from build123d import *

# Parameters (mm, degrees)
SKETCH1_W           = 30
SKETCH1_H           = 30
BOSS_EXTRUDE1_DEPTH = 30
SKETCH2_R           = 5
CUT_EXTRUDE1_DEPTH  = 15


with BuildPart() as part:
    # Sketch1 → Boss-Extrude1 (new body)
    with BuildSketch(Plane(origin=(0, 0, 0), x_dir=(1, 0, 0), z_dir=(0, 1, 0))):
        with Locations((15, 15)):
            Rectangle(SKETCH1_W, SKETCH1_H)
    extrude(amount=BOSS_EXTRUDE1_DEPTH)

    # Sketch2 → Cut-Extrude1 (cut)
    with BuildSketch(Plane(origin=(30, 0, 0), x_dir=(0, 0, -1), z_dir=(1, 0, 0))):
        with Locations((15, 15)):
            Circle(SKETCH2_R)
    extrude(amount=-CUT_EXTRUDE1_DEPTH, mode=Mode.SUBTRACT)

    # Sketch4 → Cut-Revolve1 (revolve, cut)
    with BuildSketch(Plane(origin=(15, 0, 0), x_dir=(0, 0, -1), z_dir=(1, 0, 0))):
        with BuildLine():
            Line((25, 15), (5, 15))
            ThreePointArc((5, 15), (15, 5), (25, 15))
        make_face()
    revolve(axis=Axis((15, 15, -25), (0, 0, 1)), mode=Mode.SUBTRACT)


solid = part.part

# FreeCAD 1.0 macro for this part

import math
import FreeCAD as App
import Part
import Sketcher

V = App.Vector
Q = App.Units.Quantity


def add_polygon(sketch, points):
    """Adds a closed chain of lines whose ends are joined by coincident constraints."""
    first, n = sketch.GeometryCount, len(points)
    for a, b in zip(points, points[1:] + points[:1]):
        sketch.addGeometry(Part.LineSegment(App.Vector(*a, 0), App.Vector(*b, 0)), False)
    for i in range(n):
        sketch.addConstraint(Sketcher.Constraint("Coincident", first + i, 2, first + (i + 1) % n, 1))

doc = App.newDocument("Part")
params = doc.addObject("Spreadsheet::Sheet", "Params")
for row, (alias, value) in enumerate([
    ("sketch1_width", "30 mm"),
    ("pad1_length", "30 mm"),
    ("sketch2_diameter", "10 mm"),
    ("pocket1_length", "15 mm"),
    ("sketch3_radius", "10 mm"),
    ("groove_angle", "360 deg"),
], start=1):
    params.set(f"A{row}", alias)
    params.set(f"B{row}", "=" + value)
    params.setAlias(f"B{row}", alias)

body = doc.addObject("PartDesign::Body", "Body")

sketch1 = body.newObject("Sketcher::SketchObject", "Sketch")
sketch1.AttachmentSupport = (doc.getObject("XZ_Plane"), [""])
sketch1.MapMode = "FlatFace"
add_polygon(sketch1, [(0, -30), (0, 0), (30, 0), (30, -30)])
sketch1.addConstraint([
    Sketcher.Constraint("Vertical", 0),
    Sketcher.Constraint("Horizontal", 1),
    Sketcher.Constraint("Vertical", 2),
    Sketcher.Constraint("Horizontal", 3),
    Sketcher.Constraint("Coincident", 0, 2, -1, 1),
    Sketcher.Constraint("Equal", 3, 0),
    Sketcher.Constraint("DistanceX", 1, 1, 1, 2, Q("30 mm")),
])
sketch1.setExpression("Constraints[10]", "Params.sketch1_width")
pad1 = body.newObject("PartDesign::Pad", "Pad")
pad1.Profile = sketch1
pad1.setExpression("Length", "Params.pad1_length")
pad1.Reversed = True

sketch2 = body.newObject("Sketcher::SketchObject", "Sketch001")
sketch2.AttachmentSupport = (doc.getObject("YZ_Plane"), [""])
sketch2.MapMode = "FlatFace"
sketch2.AttachmentOffset = App.Placement(V(0, 0, 30), App.Rotation())
sketch2.addGeometry(Part.Circle(V(15, -15, 0), V(0, 0, 1), 5), False)
sketch2.addConstraint([
    Sketcher.Constraint("Diameter", 0, Q("10 mm")),
    Sketcher.Constraint("DistanceX", -1, 1, 0, 3, Q("15 mm")),
    Sketcher.Constraint("DistanceY", 0, 3, -1, 1, Q("15 mm")),
])
sketch2.setExpression("Constraints[0]", "Params.sketch2_diameter")
pocket1 = body.newObject("PartDesign::Pocket", "Pocket")
pocket1.Profile = sketch2
pocket1.setExpression("Length", "Params.pocket1_length")

sketch3 = body.newObject("Sketcher::SketchObject", "Sketch002")
sketch3.AttachmentSupport = (doc.getObject("YZ_Plane"), [""])
sketch3.MapMode = "FlatFace"
sketch3.AttachmentOffset = App.Placement(V(0, 0, 15), App.Rotation())
sketch3.addGeometry([
    Part.LineSegment(V(15, -25, 0), V(15, -5, 0)),
    Part.ArcOfCircle(Part.Circle(V(15, -15, 0), V(0, 0, 1), 10), math.radians(90), math.radians(270)),
], False)
sketch3.addGeometry(Part.LineSegment(V(15, -25, 0), V(15, -5, 0)), True)
sketch3.addConstraint([
    Sketcher.Constraint("Coincident", 0, 1, 1, 2),
    Sketcher.Constraint("Coincident", 1, 1, 0, 2),
    Sketcher.Constraint("Vertical", 0),
    Sketcher.Constraint("Vertical", 2),
    Sketcher.Constraint("Coincident", 2, 1, 0, 1),
    Sketcher.Constraint("Vertical", 1, 3, 0, 1),
    Sketcher.Constraint("Equal", 0, 2),
    Sketcher.Constraint("Radius", 1, Q("10 mm")),
    Sketcher.Constraint("DistanceX", -1, 1, 1, 3, Q("15 mm")),
    Sketcher.Constraint("DistanceY", 1, 3, -1, 1, Q("15 mm")),
])
sketch3.setExpression("Constraints[7]", "Params.sketch3_radius")
groove = body.newObject("PartDesign::Groove", "Groove")
groove.Profile = sketch3
groove.ReferenceAxis = (sketch3, ["Axis0"])
groove.setExpression("Angle", "Params.groove_angle")

doc.recompute()
